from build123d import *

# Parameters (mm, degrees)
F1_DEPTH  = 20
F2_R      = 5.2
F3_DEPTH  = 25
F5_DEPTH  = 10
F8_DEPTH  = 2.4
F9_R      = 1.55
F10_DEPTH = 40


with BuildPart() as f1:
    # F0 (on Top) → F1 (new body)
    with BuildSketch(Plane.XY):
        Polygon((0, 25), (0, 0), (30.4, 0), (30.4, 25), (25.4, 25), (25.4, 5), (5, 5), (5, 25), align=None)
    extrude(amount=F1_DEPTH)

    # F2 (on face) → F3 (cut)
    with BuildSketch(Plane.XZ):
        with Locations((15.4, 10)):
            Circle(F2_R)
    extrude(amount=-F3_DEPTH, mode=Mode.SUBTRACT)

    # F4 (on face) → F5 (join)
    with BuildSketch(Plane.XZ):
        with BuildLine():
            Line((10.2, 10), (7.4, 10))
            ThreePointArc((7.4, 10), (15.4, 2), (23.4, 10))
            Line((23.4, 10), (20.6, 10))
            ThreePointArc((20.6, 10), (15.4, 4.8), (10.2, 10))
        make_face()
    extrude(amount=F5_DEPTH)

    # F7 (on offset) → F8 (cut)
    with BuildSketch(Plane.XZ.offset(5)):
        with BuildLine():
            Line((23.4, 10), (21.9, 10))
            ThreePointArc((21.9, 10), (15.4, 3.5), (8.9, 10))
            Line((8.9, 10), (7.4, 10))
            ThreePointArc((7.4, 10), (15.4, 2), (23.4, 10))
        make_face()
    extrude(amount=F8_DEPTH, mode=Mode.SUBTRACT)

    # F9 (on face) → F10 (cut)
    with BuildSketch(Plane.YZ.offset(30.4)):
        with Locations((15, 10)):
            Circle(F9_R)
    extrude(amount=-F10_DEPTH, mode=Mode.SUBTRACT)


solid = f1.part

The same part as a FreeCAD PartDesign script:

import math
import FreeCAD as App
import Part
import Sketcher

V = App.Vector


def add_polygon(sketch, points):
    """Adds a closed chain of lines whose ends are joined by coincident constraints."""
    first, n = sketch.GeometryCount, len(points)
    for a, b in zip(points, points[1:] + points[:1]):
        sketch.addGeometry(Part.LineSegment(App.Vector(*a, 0), App.Vector(*b, 0)), False)
    for i in range(n):
        sketch.addConstraint(Sketcher.Constraint("Coincident", first + i, 2, first + (i + 1) % n, 1))

doc = App.newDocument("Part")
body = doc.addObject("PartDesign::Body", "Body")

sketch1 = body.newObject("Sketcher::SketchObject", "Sketch")
sketch1.AttachmentSupport = (doc.getObject("XY_Plane"), [""])
sketch1.MapMode = "FlatFace"
add_polygon(sketch1, [(0, 25), (0, 0), (30.4, 0), (30.4, 25), (25.4, 25), (25.4, 5), (5, 5), (5, 25)])
sketch1.addConstraint(Sketcher.Constraint("Vertical", 0))
sketch1.addConstraint(Sketcher.Constraint("Horizontal", 1))
sketch1.addConstraint(Sketcher.Constraint("Vertical", 2))
sketch1.addConstraint(Sketcher.Constraint("Horizontal", 3))
sketch1.addConstraint(Sketcher.Constraint("Vertical", 4))
sketch1.addConstraint(Sketcher.Constraint("Horizontal", 5))
sketch1.addConstraint(Sketcher.Constraint("Vertical", 6))
sketch1.addConstraint(Sketcher.Constraint("Horizontal", 7))
sketch1.addConstraint(Sketcher.Constraint("Coincident", 0, 2, -1, 1))
sketch1.addConstraint(Sketcher.Constraint("Horizontal", 3, 2, 6, 2))
sketch1.addConstraint(Sketcher.Constraint("Equal", 3, 7))
sketch1.addConstraint(Sketcher.Constraint("DistanceX", 3, 2, 3, 1, 5.0))
sketch1.addConstraint(Sketcher.Constraint("DistanceY", 0, 2, 0, 1, 25.0))
sketch1.addConstraint(Sketcher.Constraint("DistanceY", 4, 2, 4, 1, 20.0))
sketch1.addConstraint(Sketcher.Constraint("DistanceX", 1, 1, 1, 2, 30.4))
pad1 = body.newObject("PartDesign::Pad", "Pad")
pad1.Profile = sketch1
pad1.Length = 20

sketch2 = body.newObject("Sketcher::SketchObject", "Sketch001")
sketch2.AttachmentSupport = (doc.getObject("XZ_Plane"), [""])
sketch2.MapMode = "FlatFace"
sketch2.addGeometry(Part.Circle(V(15.4, 10, 0), V(0, 0, 1), 5.2), False)
sketch2.addConstraint(Sketcher.Constraint("Diameter", 0, 10.4))
sketch2.addConstraint(Sketcher.Constraint("DistanceY", -1, 1, 0, 3, 10.0))
sketch2.addConstraint(Sketcher.Constraint("DistanceX", -1, 1, 0, 3, 15.4))
pocket1 = body.newObject("PartDesign::Pocket", "Pocket")
pocket1.Profile = sketch2
pocket1.Length = 25

sketch3 = body.newObject("Sketcher::SketchObject", "Sketch002")
sketch3.AttachmentSupport = (doc.getObject("XZ_Plane"), [""])
sketch3.MapMode = "FlatFace"
sketch3.addGeometry(Part.LineSegment(V(10.2, 10, 0), V(7.4, 10, 0)), False)
sketch3.addGeometry(Part.ArcOfCircle(Part.Circle(V(15.4, 10, 0), V(0, 0, 1), 8), math.radians(180), math.radians(360)), False)
sketch3.addGeometry(Part.LineSegment(V(23.4, 10, 0), V(20.6, 10, 0)), False)
sketch3.addGeometry(Part.ArcOfCircle(Part.Circle(V(15.4, 10, 0), V(0, 0, 1), 5.2), math.radians(180), math.radians(360)), False)
sketch3.addConstraint(Sketcher.Constraint("Coincident", 0, 2, 1, 1))
sketch3.addConstraint(Sketcher.Constraint("Coincident", 1, 2, 2, 1))
sketch3.addConstraint(Sketcher.Constraint("Coincident", 2, 2, 3, 2))
sketch3.addConstraint(Sketcher.Constraint("Coincident", 3, 1, 0, 1))
sketch3.addConstraint(Sketcher.Constraint("Horizontal", 0))
sketch3.addConstraint(Sketcher.Constraint("Horizontal", 2))
sketch3.addConstraint(Sketcher.Constraint("Coincident", 3, 3, 1, 3))
sketch3.addConstraint(Sketcher.Constraint("Horizontal", 3, 3, 0, 2))
sketch3.addConstraint(Sketcher.Constraint("Horizontal", 0, 2, 1, 2))
sketch3.addConstraint(Sketcher.Constraint("Radius", 1, 8.0))
sketch3.addConstraint(Sketcher.Constraint("Radius", 3, 5.2))
sketch3.addConstraint(Sketcher.Constraint("DistanceY", -1, 1, 1, 3, 10.0))
sketch3.addConstraint(Sketcher.Constraint("DistanceX", -1, 1, 1, 3, 15.4))
pad2 = body.newObject("PartDesign::Pad", "Pad001")
pad2.Profile = sketch3
pad2.Length = 10

sketch4 = body.newObject("Sketcher::SketchObject", "Sketch003")
sketch4.AttachmentSupport = (doc.getObject("XZ_Plane"), [""])
sketch4.MapMode = "FlatFace"
sketch4.AttachmentOffset = App.Placement(V(0, 0, 5), App.Rotation())
sketch4.addGeometry(Part.LineSegment(V(23.4, 10, 0), V(21.9, 10, 0)), False)
sketch4.addGeometry(Part.ArcOfCircle(Part.Circle(V(15.4, 10, 0), V(0, 0, 1), 6.5), math.radians(180), math.radians(360)), False)
sketch4.addGeometry(Part.LineSegment(V(8.9, 10, 0), V(7.4, 10, 0)), False)
sketch4.addGeometry(Part.ArcOfCircle(Part.Circle(V(15.4, 10, 0), V(0, 0, 1), 8), math.radians(180), math.radians(360)), False)
sketch4.addConstraint(Sketcher.Constraint("Coincident", 0, 2, 1, 2))
sketch4.addConstraint(Sketcher.Constraint("Coincident", 1, 1, 2, 1))
sketch4.addConstraint(Sketcher.Constraint("Coincident", 2, 2, 3, 1))
sketch4.addConstraint(Sketcher.Constraint("Coincident", 3, 2, 0, 1))
sketch4.addConstraint(Sketcher.Constraint("Horizontal", 0))
sketch4.addConstraint(Sketcher.Constraint("Horizontal", 2))
sketch4.addConstraint(Sketcher.Constraint("Coincident", 3, 3, 1, 3))
sketch4.addConstraint(Sketcher.Constraint("Horizontal", 3, 3, 0, 2))
sketch4.addConstraint(Sketcher.Constraint("Horizontal", 0, 2, 1, 1))
sketch4.addConstraint(Sketcher.Constraint("Radius", 3, 8.0))
sketch4.addConstraint(Sketcher.Constraint("Radius", 1, 6.5))
sketch4.addConstraint(Sketcher.Constraint("DistanceY", -1, 1, 1, 3, 10.0))
sketch4.addConstraint(Sketcher.Constraint("DistanceX", -1, 1, 1, 3, 15.4))
pocket2 = body.newObject("PartDesign::Pocket", "Pocket001")
pocket2.Profile = sketch4
pocket2.Length = 2.4
pocket2.Reversed = True

sketch5 = body.newObject("Sketcher::SketchObject", "Sketch004")
sketch5.AttachmentSupport = (doc.getObject("YZ_Plane"), [""])
sketch5.MapMode = "FlatFace"
sketch5.AttachmentOffset = App.Placement(V(0, 0, 30.4), App.Rotation())
sketch5.addGeometry(Part.Circle(V(15, 10, 0), V(0, 0, 1), 1.55), False)
sketch5.addConstraint(Sketcher.Constraint("Diameter", 0, 3.1))
sketch5.addConstraint(Sketcher.Constraint("DistanceX", -1, 1, 0, 3, 15.0))
sketch5.addConstraint(Sketcher.Constraint("DistanceY", -1, 1, 0, 3, 10.0))
pocket3 = body.newObject("PartDesign::Pocket", "Pocket002")
pocket3.Profile = sketch5
pocket3.Length = 40

doc.recompute()
